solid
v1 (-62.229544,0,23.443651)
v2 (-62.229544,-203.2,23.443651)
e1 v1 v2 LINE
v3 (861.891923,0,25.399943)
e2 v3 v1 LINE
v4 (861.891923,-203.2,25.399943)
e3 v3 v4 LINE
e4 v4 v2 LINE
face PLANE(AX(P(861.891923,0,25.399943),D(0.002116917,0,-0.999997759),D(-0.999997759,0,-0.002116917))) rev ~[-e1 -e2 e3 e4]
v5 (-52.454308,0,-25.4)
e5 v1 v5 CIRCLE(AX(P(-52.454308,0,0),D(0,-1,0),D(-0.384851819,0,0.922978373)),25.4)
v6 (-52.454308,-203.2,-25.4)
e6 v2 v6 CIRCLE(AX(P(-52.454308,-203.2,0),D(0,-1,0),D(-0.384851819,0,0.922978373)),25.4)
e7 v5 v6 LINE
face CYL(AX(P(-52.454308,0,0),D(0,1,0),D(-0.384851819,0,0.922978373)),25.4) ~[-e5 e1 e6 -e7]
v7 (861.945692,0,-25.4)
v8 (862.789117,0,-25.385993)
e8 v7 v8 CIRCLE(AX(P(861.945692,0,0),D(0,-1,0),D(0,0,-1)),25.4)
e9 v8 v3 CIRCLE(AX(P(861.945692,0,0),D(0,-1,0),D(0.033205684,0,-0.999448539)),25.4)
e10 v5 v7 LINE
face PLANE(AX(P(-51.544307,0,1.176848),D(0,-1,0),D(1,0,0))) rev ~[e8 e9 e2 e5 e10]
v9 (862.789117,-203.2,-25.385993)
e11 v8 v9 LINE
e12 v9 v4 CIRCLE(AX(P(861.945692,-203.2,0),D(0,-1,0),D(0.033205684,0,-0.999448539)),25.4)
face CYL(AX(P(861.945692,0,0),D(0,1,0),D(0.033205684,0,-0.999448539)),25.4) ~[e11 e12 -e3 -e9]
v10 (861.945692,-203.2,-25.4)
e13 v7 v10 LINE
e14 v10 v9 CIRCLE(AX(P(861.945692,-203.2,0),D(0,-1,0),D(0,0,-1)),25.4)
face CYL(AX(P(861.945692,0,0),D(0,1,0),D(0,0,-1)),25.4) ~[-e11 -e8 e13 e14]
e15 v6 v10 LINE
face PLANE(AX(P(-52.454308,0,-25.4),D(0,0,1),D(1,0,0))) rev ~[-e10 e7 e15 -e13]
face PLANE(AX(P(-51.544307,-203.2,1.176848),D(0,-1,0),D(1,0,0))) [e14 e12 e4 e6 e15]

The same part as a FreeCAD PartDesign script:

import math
import FreeCAD as App
import Part
import Sketcher
Q = App.Units.Quantity

doc = App.newDocument("Part")
body = doc.addObject("PartDesign::Body", "Body")

# Sketch on XZ plane
sketch1 = doc.addObject("Sketcher::SketchObject", "Sketch")
body.addObject(sketch1)
sketch1.AttachmentSupport = (doc.XZ_Plane, [""])
sketch1.MapMode = "FlatFace"
sketch1.addGeometry(Part.ArcOfCircle(Part.Circle(App.Vector(-52.5, 0, 0), App.Vector(0, 0, 1), 25.4), math.radians(113), math.radians(270)), False)
sketch1.addGeometry(Part.LineSegment(App.Vector(-52.5, -25.4, 0), App.Vector(861.9, -25.4, 0)), False)
sketch1.addGeometry(Part.ArcOfCircle(Part.Circle(App.Vector(861.9, 0, 0), App.Vector(0, 0, 1), 25.4), math.radians(-90), math.radians(-88.1)), False)
sketch1.addGeometry(Part.ArcOfCircle(Part.Circle(App.Vector(861.9, 0, 0), App.Vector(0, 0, 1), 25.4), math.radians(-88), math.radians(90)), False)
sketch1.addGeometry(Part.LineSegment(App.Vector(861.9, 25.4, 0), App.Vector(-62.2, 23.4, 0)), False)
sketch1.addConstraint(Sketcher.Constraint("Tangent", 0, 2, 1, 1))
sketch1.addConstraint(Sketcher.Constraint("Tangent", 1, 2, 2, 1))
sketch1.addConstraint(Sketcher.Constraint("Tangent", 2, 2, 3, 1))
sketch1.addConstraint(Sketcher.Constraint("Tangent", 3, 2, 4, 1))
sketch1.addConstraint(Sketcher.Constraint("Coincident", 4, 2, 0, 1))
sketch1.addConstraint(Sketcher.Constraint("Horizontal", 1))
sketch1.addConstraint(Sketcher.Constraint("Equal", 0, 2))
sketch1.addConstraint(Sketcher.Constraint("Equal", 2, 3))
sketch1.addConstraint(Sketcher.Constraint("PointOnObject", 0, 3, -1))
sketch1.addConstraint(Sketcher.Constraint("Radius", 0, Q("1 in")))
sketch1.addConstraint(Sketcher.Constraint("DistanceX", 1, 1, 1, 2, Q("36 in")))
sketch1.addConstraint(Sketcher.Constraint("DistanceY", -1, 1, 4, 2, Q("23.443651 mm")))
sketch1.addConstraint(Sketcher.Constraint("DistanceX", 0, 3, -1, 1, Q("52.454308 mm")))
sketch1.addConstraint(Sketcher.Constraint("DistanceX", -1, 1, 2, 2, Q("862.789117 mm")))
pad1 = doc.addObject("PartDesign::Pad", "Pad")
body.addObject(pad1)
pad1.Profile = sketch1
pad1.Length = Q("8 in")

doc.recompute()
